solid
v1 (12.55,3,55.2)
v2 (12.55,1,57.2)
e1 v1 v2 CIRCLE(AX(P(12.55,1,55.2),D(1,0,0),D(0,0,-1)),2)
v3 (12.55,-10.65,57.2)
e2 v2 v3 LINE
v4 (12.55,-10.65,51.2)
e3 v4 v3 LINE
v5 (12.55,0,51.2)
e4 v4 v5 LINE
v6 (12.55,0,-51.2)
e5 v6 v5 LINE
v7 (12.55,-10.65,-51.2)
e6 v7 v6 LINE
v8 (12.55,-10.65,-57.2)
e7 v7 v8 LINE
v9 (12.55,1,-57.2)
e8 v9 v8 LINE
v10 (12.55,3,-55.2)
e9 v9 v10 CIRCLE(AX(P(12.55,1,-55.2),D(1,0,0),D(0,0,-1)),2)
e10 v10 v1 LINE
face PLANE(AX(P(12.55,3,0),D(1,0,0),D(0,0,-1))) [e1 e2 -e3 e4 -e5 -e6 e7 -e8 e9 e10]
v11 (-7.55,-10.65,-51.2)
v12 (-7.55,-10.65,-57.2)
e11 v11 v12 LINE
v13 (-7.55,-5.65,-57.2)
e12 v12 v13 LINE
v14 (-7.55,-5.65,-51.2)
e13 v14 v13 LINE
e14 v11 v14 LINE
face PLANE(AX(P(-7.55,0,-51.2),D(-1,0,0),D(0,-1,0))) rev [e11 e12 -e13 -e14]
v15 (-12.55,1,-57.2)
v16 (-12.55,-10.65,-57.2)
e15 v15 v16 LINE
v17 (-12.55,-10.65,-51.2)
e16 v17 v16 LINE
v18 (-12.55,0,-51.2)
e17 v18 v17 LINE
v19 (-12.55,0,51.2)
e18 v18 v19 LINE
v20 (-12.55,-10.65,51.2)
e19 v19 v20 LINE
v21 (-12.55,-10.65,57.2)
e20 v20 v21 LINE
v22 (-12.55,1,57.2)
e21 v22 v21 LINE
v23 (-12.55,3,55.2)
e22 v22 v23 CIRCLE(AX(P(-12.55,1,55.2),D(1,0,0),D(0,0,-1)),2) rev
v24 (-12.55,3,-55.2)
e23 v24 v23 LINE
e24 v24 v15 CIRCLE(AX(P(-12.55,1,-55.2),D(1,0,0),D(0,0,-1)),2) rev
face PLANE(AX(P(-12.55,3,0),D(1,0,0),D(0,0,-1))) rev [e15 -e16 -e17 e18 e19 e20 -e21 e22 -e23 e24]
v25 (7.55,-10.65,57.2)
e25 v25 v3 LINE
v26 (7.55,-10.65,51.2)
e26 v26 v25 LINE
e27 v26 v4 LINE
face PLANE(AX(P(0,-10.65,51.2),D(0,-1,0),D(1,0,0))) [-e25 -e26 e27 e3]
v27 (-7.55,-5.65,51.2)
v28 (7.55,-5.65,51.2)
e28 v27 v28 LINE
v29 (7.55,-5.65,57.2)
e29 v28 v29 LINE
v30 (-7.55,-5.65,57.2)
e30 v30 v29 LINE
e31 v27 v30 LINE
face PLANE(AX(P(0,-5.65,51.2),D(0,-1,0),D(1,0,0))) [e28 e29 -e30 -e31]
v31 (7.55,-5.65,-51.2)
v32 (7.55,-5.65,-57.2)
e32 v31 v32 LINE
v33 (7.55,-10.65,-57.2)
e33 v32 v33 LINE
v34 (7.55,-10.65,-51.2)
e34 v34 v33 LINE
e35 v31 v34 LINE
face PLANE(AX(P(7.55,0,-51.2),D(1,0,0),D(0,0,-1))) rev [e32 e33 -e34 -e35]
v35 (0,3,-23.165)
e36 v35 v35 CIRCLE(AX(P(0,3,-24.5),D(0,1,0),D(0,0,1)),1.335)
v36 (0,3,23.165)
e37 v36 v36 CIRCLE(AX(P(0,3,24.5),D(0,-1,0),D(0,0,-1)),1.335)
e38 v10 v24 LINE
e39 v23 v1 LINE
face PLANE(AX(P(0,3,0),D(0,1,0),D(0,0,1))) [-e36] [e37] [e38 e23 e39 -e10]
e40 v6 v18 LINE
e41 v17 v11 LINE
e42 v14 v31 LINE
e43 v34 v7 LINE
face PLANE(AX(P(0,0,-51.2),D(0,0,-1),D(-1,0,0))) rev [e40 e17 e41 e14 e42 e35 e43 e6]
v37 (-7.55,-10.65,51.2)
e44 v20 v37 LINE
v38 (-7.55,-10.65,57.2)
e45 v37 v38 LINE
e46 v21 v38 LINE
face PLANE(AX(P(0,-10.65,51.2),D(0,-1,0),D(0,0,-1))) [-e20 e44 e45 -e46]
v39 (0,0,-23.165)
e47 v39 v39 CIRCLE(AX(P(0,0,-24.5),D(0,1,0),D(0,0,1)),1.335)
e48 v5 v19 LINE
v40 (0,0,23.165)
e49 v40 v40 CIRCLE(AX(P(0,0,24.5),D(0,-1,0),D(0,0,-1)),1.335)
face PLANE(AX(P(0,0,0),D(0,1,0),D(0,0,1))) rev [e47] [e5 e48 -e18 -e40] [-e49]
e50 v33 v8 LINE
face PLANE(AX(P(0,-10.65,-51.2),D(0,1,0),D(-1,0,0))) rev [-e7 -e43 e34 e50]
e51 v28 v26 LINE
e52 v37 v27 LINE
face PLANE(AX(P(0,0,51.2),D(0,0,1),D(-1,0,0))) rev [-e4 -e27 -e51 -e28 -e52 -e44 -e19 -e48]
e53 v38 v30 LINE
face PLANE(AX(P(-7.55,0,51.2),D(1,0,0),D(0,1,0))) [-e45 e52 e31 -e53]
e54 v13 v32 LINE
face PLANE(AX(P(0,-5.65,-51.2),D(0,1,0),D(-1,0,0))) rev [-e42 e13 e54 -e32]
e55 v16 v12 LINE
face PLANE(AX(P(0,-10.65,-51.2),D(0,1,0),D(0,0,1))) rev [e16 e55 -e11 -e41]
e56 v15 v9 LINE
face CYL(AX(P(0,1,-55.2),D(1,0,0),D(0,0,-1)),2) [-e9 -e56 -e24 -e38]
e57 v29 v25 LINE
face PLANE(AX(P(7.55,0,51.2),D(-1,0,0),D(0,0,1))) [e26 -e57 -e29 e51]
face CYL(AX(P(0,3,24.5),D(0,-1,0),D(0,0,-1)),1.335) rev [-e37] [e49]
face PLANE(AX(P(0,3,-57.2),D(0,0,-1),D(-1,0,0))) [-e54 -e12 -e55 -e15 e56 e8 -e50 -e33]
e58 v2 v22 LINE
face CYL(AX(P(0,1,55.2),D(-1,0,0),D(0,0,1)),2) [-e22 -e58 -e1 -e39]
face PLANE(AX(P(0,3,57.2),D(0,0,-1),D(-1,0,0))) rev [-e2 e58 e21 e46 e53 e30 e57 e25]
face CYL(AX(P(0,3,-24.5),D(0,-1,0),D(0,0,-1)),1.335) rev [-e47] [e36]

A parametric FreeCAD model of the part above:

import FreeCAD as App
import Part
import Sketcher


def edges_at(feature, points):
    """Names of the edges that pass closest to the given points."""
    edges = feature.Shape.Edges
    near = lambda p: min(range(len(edges)), key=lambda i: edges[i].distToShape(Part.Vertex(*p))[0])
    return sorted({f"Edge{near(p) + 1}" for p in points})

doc = App.newDocument("Part")
body = doc.addObject("PartDesign::Body", "Body")

sketch1 = body.newObject("Sketcher::SketchObject", "Sketch")
sketch1.AttachmentSupport = (doc.getObject("XZ_Plane"), [""])
sketch1.MapMode = "FlatFace"
sketch1.addGeometry([
    Part.LineSegment(App.Vector(-12.6, -57.2, 0), App.Vector(-12.6, 0, 0)),
    Part.LineSegment(App.Vector(-12.6, 0, 0), App.Vector(12.6, 0, 0)),
    Part.LineSegment(App.Vector(12.6, 0, 0), App.Vector(12.6, -57.2, 0)),
    Part.LineSegment(App.Vector(12.6, -57.2, 0), App.Vector(-12.6, -57.2, 0)),
    Part.Circle(App.Vector(0, -24.5, 0), App.Vector(0, 0, 1), 1.3),
], False)
sketch1.addConstraint([
    Sketcher.Constraint("Coincident", 0, 2, 1, 1),
    Sketcher.Constraint("Coincident", 1, 2, 2, 1),
    Sketcher.Constraint("Coincident", 2, 2, 3, 1),
    Sketcher.Constraint("Coincident", 3, 2, 0, 1),
    Sketcher.Constraint("Vertical", 0),
    Sketcher.Constraint("Horizontal", 1),
    Sketcher.Constraint("Vertical", 2),
    Sketcher.Constraint("Horizontal", 3),
    Sketcher.Constraint("Symmetric", 0, 2, 1, 2, -1, 1),
    Sketcher.Constraint("PointOnObject", 4, 3, -2),
    Sketcher.Constraint("Diameter", 4, 2.67),
    Sketcher.Constraint("DistanceX", 1, 1, 1, 2, 25.1),
    Sketcher.Constraint("DistanceY", 0, 1, 0, 2, 57.2),
    Sketcher.Constraint("DistanceY", 4, 3, -1, 1, 24.5),
])
pad1 = body.newObject("PartDesign::Pad", "Pad")
pad1.Profile = sketch1
pad1.Length = 3
pad1.Reversed = True

sketch2 = body.newObject("Sketcher::SketchObject", "Sketch001")
sketch2.AttachmentSupport = (doc.getObject("XY_Plane"), [""])
sketch2.MapMode = "FlatFace"
sketch2.AttachmentOffset = App.Placement(App.Vector(0, 0, -57.2), App.Rotation())
sketch2.addGeometry([
    Part.LineSegment(App.Vector(-13, 0, 0), App.Vector(13, 0, 0)),
    Part.LineSegment(App.Vector(13, 0, 0), App.Vector(13, -11, 0)),
    Part.LineSegment(App.Vector(13, -11, 0), App.Vector(8, -11, 0)),
    Part.LineSegment(App.Vector(8, -11, 0), App.Vector(8, -6, 0)),
    Part.LineSegment(App.Vector(8, -6, 0), App.Vector(-8, -6, 0)),
    Part.LineSegment(App.Vector(-8, -6, 0), App.Vector(-8, -11, 0)),
    Part.LineSegment(App.Vector(-8, -11, 0), App.Vector(-13, -11, 0)),
    Part.LineSegment(App.Vector(-13, -11, 0), App.Vector(-13, 0, 0)),
], False)
sketch2.addConstraint([
    Sketcher.Constraint("Coincident", 0, 2, 1, 1),
    Sketcher.Constraint("Coincident", 1, 2, 2, 1),
    Sketcher.Constraint("Coincident", 2, 2, 3, 1),
    Sketcher.Constraint("Coincident", 3, 2, 4, 1),
    Sketcher.Constraint("Coincident", 4, 2, 5, 1),
    Sketcher.Constraint("Coincident", 5, 2, 6, 1),
    Sketcher.Constraint("Coincident", 6, 2, 7, 1),
    Sketcher.Constraint("Coincident", 7, 2, 0, 1),
    Sketcher.Constraint("Horizontal", 0),
    Sketcher.Constraint("Vertical", 1),
    Sketcher.Constraint("Horizontal", 2),
    Sketcher.Constraint("Vertical", 3),
    Sketcher.Constraint("Horizontal", 4),
    Sketcher.Constraint("Vertical", 5),
    Sketcher.Constraint("Horizontal", 6),
    Sketcher.Constraint("Vertical", 7),
    Sketcher.Constraint("Symmetric", 0, 2, 7, 2, -1, 1),
    Sketcher.Constraint("Symmetric", 2, 2, 5, 2, -2),
    Sketcher.Constraint("Equal", 6, 3),
    Sketcher.Constraint("DistanceX", 2, 2, 2, 1, 5.0),
    Sketcher.Constraint("DistanceX", 0, 1, 0, 2, 25.1),
    Sketcher.Constraint("DistanceY", 1, 2, 1, 1, 10.65),
])
pad2 = body.newObject("PartDesign::Pad", "Pad001")
pad2.Profile = sketch2
pad2.Length = 6
doc.recompute()

mirrored = body.newObject("PartDesign::Mirrored", "Mirrored")
mirrored.Originals = [pad1, pad2]
mirrored.MirrorPlane = (doc.getObject("XY_Plane"), [""])
body.Tip = mirrored
doc.recompute()

fillet = body.newObject("PartDesign::Fillet", "Fillet")
fillet.Base = (mirrored, edges_at(mirrored, [(0, 3, -57.2), (0, 3, 57.2)]))
fillet.Radius = 2

doc.recompute()
